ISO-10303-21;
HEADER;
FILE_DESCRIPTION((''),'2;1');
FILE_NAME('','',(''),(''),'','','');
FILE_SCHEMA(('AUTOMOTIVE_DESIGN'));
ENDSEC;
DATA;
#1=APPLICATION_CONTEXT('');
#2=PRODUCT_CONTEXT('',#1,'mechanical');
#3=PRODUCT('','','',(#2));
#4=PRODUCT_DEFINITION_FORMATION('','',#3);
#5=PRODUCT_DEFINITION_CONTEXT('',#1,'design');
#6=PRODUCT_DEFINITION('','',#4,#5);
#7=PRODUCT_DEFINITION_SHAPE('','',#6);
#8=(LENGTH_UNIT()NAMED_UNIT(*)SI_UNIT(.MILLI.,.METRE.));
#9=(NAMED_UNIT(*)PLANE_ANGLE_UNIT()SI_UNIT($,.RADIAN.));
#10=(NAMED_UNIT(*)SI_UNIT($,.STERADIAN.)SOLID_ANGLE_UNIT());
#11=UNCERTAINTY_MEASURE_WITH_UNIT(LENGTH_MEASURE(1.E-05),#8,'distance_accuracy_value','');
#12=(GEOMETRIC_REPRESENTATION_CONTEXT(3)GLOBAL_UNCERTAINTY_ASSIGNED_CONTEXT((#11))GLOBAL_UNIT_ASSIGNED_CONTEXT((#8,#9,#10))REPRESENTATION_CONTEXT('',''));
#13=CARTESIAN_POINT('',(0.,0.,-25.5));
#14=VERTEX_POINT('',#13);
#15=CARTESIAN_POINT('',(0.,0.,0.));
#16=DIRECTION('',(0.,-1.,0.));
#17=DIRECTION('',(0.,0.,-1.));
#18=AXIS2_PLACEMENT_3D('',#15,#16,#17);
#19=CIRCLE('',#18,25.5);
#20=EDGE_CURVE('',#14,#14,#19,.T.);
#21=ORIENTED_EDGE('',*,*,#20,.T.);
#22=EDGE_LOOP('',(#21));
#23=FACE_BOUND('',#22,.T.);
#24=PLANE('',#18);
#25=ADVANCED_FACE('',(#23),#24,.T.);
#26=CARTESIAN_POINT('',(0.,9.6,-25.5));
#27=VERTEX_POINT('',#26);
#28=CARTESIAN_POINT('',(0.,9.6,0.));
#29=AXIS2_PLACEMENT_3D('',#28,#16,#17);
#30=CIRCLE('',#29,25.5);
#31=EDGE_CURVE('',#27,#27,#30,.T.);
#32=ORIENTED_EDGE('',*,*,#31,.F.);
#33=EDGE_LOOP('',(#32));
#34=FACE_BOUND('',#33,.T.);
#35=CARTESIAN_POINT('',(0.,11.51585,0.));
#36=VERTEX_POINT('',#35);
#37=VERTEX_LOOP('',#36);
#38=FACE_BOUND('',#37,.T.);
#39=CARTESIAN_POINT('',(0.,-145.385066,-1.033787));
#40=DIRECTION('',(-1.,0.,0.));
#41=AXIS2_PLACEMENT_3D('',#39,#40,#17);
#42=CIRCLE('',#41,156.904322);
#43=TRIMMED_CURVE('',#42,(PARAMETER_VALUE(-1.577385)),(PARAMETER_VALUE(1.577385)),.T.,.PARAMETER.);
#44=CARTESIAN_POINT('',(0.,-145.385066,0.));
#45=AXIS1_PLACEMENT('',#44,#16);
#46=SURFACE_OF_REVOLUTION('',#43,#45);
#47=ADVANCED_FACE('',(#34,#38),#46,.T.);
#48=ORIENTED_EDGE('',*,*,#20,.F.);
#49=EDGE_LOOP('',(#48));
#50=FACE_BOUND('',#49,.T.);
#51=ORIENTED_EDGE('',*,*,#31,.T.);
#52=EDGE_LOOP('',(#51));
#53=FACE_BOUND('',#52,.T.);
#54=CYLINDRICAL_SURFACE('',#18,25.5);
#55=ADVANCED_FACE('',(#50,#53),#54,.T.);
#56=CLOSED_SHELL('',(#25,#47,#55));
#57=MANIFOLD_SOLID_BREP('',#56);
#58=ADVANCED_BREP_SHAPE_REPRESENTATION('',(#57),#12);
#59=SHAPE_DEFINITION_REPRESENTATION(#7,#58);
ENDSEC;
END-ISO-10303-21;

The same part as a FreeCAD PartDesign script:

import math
import FreeCAD as App
import Part
import Sketcher
Q = App.Units.Quantity

doc = App.newDocument("Part")
body = doc.addObject("PartDesign::Body", "Body")

# Sketch on YZ plane
sketch1 = body.newObject("Sketcher::SketchObject", "Sketch")
sketch1.AttachmentSupport = (doc.getObject("YZ_Plane"), [""])
sketch1.MapMode = "FlatFace"
sketch1.addGeometry(Part.LineSegment(App.Vector(0, 0, 0), App.Vector(0, -25.5, 0)), False)
sketch1.addGeometry(Part.LineSegment(App.Vector(0, -25.5, 0), App.Vector(9.6, -25.5, 0)), False)
sketch1.addGeometry(Part.ArcOfCircle(Part.Circle(App.Vector(-145.385067, -1.033787, 0), App.Vector(0, 0, 1), 156.904323), math.radians(-8.970782), math.radians(0.377504)), False)
sketch1.addGeometry(Part.LineSegment(App.Vector(11.51585, 0, 0), App.Vector(0, 0, 0)), False)
sketch1.addConstraint(Sketcher.Constraint("Coincident", 0, 2, 1, 1))
sketch1.addConstraint(Sketcher.Constraint("Coincident", 1, 2, 2, 1))
sketch1.addConstraint(Sketcher.Constraint("Coincident", 2, 2, 3, 1))
sketch1.addConstraint(Sketcher.Constraint("Coincident", 3, 2, 0, 1))
sketch1.addConstraint(Sketcher.Constraint("Vertical", 0))
sketch1.addConstraint(Sketcher.Constraint("Horizontal", 1))
sketch1.addConstraint(Sketcher.Constraint("Horizontal", 3))
sketch1.addConstraint(Sketcher.Constraint("Coincident", 3, 2, -1, 1))
sketch1.addConstraint(Sketcher.Constraint("DistanceX", 1, 1, 1, 2, Q("9.6 mm")))
sketch1.addConstraint(Sketcher.Constraint("DistanceY", 0, 2, 0, 1, Q("25.5 mm")))
sketch1.addConstraint(Sketcher.Constraint("Radius", 2, Q("156.904323 mm")))
sketch1.addConstraint(Sketcher.Constraint("DistanceX", 3, 2, 3, 1, Q("11.51585 mm")))
revolution = body.newObject("PartDesign::Revolution", "Revolution")
revolution.Profile = sketch1
revolution.ReferenceAxis = (sketch1, ["H_Axis"])
revolution.Angle = 360

doc.recompute()
